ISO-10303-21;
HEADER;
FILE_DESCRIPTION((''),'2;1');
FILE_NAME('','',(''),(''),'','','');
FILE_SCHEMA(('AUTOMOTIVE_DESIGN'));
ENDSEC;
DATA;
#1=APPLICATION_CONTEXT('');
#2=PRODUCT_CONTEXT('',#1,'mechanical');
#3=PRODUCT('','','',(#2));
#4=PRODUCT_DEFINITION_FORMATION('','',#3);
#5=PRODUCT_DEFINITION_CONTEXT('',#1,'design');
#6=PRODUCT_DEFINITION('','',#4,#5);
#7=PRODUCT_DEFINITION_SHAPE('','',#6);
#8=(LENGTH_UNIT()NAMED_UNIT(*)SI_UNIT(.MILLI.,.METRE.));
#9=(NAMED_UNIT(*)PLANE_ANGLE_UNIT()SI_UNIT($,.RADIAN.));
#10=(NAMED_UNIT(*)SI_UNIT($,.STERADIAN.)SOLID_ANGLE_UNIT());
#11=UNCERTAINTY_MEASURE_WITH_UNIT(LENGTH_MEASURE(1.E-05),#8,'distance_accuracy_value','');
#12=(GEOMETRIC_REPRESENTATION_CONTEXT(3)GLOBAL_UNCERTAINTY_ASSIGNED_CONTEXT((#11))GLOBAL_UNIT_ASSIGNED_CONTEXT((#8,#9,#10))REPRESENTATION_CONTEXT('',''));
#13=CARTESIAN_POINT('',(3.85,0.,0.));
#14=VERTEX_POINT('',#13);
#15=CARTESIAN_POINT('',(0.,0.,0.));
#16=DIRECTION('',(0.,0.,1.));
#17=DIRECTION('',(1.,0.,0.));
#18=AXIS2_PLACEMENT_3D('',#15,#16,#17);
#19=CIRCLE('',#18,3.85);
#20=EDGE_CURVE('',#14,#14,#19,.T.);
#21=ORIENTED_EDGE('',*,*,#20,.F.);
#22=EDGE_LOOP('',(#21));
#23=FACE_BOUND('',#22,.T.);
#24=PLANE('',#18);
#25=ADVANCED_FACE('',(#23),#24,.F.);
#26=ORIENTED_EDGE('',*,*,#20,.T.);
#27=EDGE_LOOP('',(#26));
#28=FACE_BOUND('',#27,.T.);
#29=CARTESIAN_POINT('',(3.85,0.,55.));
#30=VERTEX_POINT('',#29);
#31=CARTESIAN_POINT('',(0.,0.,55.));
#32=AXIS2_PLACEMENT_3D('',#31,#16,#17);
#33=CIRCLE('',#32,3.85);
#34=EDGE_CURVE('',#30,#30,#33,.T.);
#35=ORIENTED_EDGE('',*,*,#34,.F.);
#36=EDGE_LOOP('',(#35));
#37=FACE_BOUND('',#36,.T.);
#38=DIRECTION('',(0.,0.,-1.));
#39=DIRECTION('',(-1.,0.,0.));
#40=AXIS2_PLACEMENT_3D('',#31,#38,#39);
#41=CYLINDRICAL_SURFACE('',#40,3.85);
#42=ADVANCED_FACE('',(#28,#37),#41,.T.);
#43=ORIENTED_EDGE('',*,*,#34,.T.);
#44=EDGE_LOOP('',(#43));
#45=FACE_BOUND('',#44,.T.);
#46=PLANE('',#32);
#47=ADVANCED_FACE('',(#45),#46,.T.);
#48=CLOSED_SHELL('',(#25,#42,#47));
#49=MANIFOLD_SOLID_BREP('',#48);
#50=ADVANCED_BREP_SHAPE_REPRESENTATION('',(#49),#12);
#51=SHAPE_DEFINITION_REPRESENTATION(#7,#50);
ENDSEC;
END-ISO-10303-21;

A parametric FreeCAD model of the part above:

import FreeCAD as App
import Part
import Sketcher

V = App.Vector

doc = App.newDocument("Part")
params = doc.addObject("Spreadsheet::Sheet", "Params")
for row, (alias, value) in enumerate([
    ("sketch1_diameter", "7.7 mm"),
    ("pad1_length", "55 mm"),
], start=1):
    params.set(f"A{row}", alias)
    params.set(f"B{row}", "=" + value)
    params.setAlias(f"B{row}", alias)

body = doc.addObject("PartDesign::Body", "Body")

# Sketch on XY plane
sketch1 = body.newObject("Sketcher::SketchObject", "Sketch")
sketch1.AttachmentSupport = (doc.getObject("XY_Plane"), [""])
sketch1.MapMode = "FlatFace"
sketch1.addGeometry(Part.Circle(V(0, 0, 0), V(0, 0, 1), 3.9), False)
sketch1.addConstraint(Sketcher.Constraint("Coincident", 0, 3, -1, 1))
sketch1.addConstraint(Sketcher.Constraint("Diameter", 0, 7.7))
sketch1.setExpression("Constraints[1]", "Params.sketch1_diameter")
pad1 = body.newObject("PartDesign::Pad", "Pad")
pad1.Profile = sketch1
pad1.setExpression("Length", "Params.pad1_length")

doc.recompute()
